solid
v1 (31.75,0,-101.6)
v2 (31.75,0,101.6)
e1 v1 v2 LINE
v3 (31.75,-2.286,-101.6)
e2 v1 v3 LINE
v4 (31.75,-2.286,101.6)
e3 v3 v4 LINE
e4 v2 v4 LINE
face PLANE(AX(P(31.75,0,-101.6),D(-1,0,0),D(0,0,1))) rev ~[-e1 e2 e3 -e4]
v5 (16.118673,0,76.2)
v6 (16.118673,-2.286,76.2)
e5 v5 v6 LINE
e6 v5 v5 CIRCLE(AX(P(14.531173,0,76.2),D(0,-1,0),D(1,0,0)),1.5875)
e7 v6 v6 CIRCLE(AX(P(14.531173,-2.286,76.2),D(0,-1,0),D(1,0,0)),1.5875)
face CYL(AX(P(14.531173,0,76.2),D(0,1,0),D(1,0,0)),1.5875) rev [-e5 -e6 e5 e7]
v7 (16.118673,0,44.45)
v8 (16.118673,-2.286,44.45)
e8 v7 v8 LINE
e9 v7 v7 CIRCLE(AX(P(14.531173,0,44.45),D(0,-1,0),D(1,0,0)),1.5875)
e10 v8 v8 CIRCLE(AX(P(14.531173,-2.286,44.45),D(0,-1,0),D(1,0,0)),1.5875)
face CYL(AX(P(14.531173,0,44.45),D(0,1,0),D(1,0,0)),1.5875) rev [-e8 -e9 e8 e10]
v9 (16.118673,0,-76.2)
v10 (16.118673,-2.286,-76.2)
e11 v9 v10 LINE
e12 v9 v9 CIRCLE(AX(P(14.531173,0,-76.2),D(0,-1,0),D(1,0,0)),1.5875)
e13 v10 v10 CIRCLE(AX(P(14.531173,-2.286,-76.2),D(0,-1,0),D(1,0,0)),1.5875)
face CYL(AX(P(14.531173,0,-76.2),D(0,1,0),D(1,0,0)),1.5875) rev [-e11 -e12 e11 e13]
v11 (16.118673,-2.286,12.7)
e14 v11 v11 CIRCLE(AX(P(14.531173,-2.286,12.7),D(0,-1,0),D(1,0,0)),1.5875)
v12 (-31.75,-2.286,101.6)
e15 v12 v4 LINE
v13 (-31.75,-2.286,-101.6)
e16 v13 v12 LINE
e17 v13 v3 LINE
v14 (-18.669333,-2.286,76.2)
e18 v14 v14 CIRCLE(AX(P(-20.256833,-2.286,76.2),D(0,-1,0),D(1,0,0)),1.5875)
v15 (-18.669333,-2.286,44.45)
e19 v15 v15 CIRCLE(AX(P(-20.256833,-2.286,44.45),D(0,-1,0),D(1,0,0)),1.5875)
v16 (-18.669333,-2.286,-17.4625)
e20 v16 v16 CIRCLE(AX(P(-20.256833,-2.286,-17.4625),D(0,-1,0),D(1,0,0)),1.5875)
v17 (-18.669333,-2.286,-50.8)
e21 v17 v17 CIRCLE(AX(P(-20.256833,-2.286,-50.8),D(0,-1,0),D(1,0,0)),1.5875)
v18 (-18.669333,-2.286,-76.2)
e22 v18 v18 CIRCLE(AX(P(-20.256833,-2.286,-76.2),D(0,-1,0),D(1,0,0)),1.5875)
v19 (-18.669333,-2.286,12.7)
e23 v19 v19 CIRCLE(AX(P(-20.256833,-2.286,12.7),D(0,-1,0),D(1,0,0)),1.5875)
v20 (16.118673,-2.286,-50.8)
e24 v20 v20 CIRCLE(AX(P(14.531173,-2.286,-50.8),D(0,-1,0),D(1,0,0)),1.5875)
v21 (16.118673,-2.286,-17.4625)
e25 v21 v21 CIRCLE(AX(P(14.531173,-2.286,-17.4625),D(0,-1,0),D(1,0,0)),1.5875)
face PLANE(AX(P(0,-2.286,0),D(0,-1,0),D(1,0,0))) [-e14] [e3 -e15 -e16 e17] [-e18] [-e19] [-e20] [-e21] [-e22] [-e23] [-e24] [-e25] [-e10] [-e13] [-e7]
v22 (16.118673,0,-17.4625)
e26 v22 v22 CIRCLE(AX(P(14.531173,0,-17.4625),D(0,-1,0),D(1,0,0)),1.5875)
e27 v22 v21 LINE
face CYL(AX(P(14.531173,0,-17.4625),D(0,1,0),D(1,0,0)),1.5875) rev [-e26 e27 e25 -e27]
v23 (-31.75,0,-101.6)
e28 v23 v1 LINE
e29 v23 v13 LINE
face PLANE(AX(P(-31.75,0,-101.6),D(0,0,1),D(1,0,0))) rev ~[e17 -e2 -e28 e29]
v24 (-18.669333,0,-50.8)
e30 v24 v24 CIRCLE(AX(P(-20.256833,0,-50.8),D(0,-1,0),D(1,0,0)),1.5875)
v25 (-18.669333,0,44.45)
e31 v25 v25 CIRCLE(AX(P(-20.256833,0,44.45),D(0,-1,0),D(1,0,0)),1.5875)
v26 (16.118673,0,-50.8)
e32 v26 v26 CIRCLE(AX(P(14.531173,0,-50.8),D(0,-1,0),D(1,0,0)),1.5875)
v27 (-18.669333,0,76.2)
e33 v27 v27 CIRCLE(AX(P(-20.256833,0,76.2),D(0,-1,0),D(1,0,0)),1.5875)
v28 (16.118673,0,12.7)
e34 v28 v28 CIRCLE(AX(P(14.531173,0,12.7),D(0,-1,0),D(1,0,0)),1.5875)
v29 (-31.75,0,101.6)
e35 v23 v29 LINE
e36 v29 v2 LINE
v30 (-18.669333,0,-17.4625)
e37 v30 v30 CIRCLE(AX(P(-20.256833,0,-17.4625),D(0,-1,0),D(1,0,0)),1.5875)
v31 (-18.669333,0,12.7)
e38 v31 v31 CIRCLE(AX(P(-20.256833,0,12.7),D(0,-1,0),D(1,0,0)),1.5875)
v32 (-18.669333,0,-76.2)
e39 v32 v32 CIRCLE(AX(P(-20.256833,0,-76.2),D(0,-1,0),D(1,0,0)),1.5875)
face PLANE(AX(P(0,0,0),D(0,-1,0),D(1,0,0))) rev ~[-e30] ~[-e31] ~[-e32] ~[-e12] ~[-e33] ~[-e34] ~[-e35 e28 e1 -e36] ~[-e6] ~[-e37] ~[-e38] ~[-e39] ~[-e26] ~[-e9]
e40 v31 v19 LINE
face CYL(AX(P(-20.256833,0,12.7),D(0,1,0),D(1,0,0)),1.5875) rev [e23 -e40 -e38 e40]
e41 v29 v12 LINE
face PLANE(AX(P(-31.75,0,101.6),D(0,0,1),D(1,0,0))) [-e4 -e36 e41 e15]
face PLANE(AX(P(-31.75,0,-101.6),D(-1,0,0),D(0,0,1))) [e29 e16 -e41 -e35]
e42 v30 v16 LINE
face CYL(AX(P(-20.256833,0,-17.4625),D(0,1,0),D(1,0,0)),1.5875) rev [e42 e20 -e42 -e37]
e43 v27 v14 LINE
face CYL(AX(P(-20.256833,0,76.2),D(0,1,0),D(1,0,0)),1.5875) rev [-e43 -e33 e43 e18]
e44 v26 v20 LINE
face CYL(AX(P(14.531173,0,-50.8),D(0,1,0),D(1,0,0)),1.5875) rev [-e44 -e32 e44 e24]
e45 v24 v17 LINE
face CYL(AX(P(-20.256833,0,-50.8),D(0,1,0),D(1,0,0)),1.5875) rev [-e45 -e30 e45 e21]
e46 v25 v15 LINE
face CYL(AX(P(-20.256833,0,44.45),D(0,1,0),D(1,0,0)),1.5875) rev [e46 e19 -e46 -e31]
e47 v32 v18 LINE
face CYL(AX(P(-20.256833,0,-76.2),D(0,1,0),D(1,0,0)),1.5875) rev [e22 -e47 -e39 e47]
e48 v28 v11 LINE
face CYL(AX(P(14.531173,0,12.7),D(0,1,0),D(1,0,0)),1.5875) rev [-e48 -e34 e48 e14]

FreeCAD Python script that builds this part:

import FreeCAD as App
import Part
import Sketcher
from FreeCAD import Vector
Q = App.Units.Quantity


def add_polygon(sketch, points):
    """Adds a closed chain of lines whose ends are joined by coincident constraints."""
    first, n = sketch.GeometryCount, len(points)
    for a, b in zip(points, points[1:] + points[:1]):
        sketch.addGeometry(Part.LineSegment(App.Vector(*a, 0), App.Vector(*b, 0)), False)
    for i in range(n):
        sketch.addConstraint(Sketcher.Constraint("Coincident", first + i, 2, first + (i + 1) % n, 1))

doc = App.newDocument("Part")
params = doc.addObject("Spreadsheet::Sheet", "Params")
for row, (alias, value) in enumerate([
    ("sketch1_height", "8 in"),
    ("sketch1_diameter", "0.125 in"),
    ("sketch1_width", "2.5 in"),
    ("pad1_length", "0.09 in"),
], start=1):
    params.set(f"A{row}", alias)
    params.set(f"B{row}", "=" + value)
    params.setAlias(f"B{row}", alias)

body = doc.addObject("PartDesign::Body", "Body")

# Sketch on XZ plane
sketch1 = body.newObject("Sketcher::SketchObject", "Sketch")
sketch1.AttachmentSupport = (doc.getObject("XZ_Plane"), [""])
sketch1.MapMode = "FlatFace"
add_polygon(sketch1, [(-31.8, 101.6), (-31.8, -101.6), (31.8, -101.6), (31.8, 101.6)])  # lines 0-3
sketch1.addGeometry(Part.Circle(Vector(-20.3, -76.2, 0), Vector(0, 0, 1), 1.6), False)  # 4
sketch1.addGeometry(Part.Circle(Vector(-20.3, -50.8, 0), Vector(0, 0, 1), 1.6), False)  # 5
sketch1.addGeometry(Part.Circle(Vector(-20.3, -17.5, 0), Vector(0, 0, 1), 1.6), False)  # 6
sketch1.addGeometry(Part.Circle(Vector(14.5, -76.2, 0), Vector(0, 0, 1), 1.6), False)  # 7
sketch1.addGeometry(Part.Circle(Vector(14.5, -50.8, 0), Vector(0, 0, 1), 1.6), False)  # 8
sketch1.addGeometry(Part.Circle(Vector(14.5, -17.5, 0), Vector(0, 0, 1), 1.6), False)  # 9
sketch1.addGeometry(Part.Circle(Vector(-20.3, 12.7, 0), Vector(0, 0, 1), 1.6), False)  # 10
sketch1.addGeometry(Part.Circle(Vector(-20.3, 44.5, 0), Vector(0, 0, 1), 1.6), False)  # 11
sketch1.addGeometry(Part.Circle(Vector(-20.3, 76.2, 0), Vector(0, 0, 1), 1.6), False)  # 12
sketch1.addGeometry(Part.Circle(Vector(14.5, 12.7, 0), Vector(0, 0, 1), 1.6), False)  # 13
sketch1.addGeometry(Part.Circle(Vector(14.5, 44.5, 0), Vector(0, 0, 1), 1.6), False)  # 14
sketch1.addGeometry(Part.Circle(Vector(14.5, 76.2, 0), Vector(0, 0, 1), 1.6), False)  # 15
sketch1.addConstraint(Sketcher.Constraint("Vertical", 0))
sketch1.addConstraint(Sketcher.Constraint("Horizontal", 1))
sketch1.addConstraint(Sketcher.Constraint("Vertical", 2))
sketch1.addConstraint(Sketcher.Constraint("Horizontal", 3))
sketch1.addConstraint(Sketcher.Constraint("Equal", 4, 5))
sketch1.addConstraint(Sketcher.Constraint("Equal", 5, 6))
sketch1.addConstraint(Sketcher.Constraint("Equal", 6, 7))
sketch1.addConstraint(Sketcher.Constraint("Equal", 7, 8))
sketch1.addConstraint(Sketcher.Constraint("Equal", 8, 9))
sketch1.addConstraint(Sketcher.Constraint("Equal", 9, 10))
sketch1.addConstraint(Sketcher.Constraint("Equal", 10, 11))
sketch1.addConstraint(Sketcher.Constraint("Equal", 11, 12))
sketch1.addConstraint(Sketcher.Constraint("Equal", 12, 13))
sketch1.addConstraint(Sketcher.Constraint("Equal", 13, 14))
sketch1.addConstraint(Sketcher.Constraint("Equal", 14, 15))
sketch1.addConstraint(Sketcher.Constraint("Symmetric", 0, 2, 2, 2, -1, 1))
sketch1.addConstraint(Sketcher.Constraint("Symmetric", 4, 3, 12, 3, -1))
sketch1.addConstraint(Sketcher.Constraint("Symmetric", 7, 3, 15, 3, -1))
sketch1.addConstraint(Sketcher.Constraint("Horizontal", 4, 3, 7, 3))
sketch1.addConstraint(Sketcher.Constraint("Horizontal", 5, 3, 8, 3))
sketch1.addConstraint(Sketcher.Constraint("Horizontal", 6, 3, 9, 3))
sketch1.addConstraint(Sketcher.Constraint("Horizontal", 10, 3, 13, 3))
sketch1.addConstraint(Sketcher.Constraint("Horizontal", 11, 3, 14, 3))
sketch1.addConstraint(Sketcher.Constraint("Vertical", 4, 3, 5, 3))
sketch1.addConstraint(Sketcher.Constraint("Vertical", 5, 3, 6, 3))
sketch1.addConstraint(Sketcher.Constraint("Vertical", 7, 3, 8, 3))
sketch1.addConstraint(Sketcher.Constraint("Vertical", 8, 3, 9, 3))
sketch1.addConstraint(Sketcher.Constraint("Vertical", 6, 3, 10, 3))
sketch1.addConstraint(Sketcher.Constraint("Vertical", 10, 3, 11, 3))
sketch1.addConstraint(Sketcher.Constraint("Vertical", 9, 3, 13, 3))
sketch1.addConstraint(Sketcher.Constraint("Vertical", 13, 3, 14, 3))
sketch1.addConstraint(Sketcher.Constraint("DistanceY", 0, 2, 0, 1, Q("8 in")))
sketch1.addConstraint(Sketcher.Constraint("Diameter", 4, Q("0.125 in")))
sketch1.addConstraint(Sketcher.Constraint("DistanceX", 1, 1, 1, 2, Q("2.5 in")))
sketch1.addConstraint(Sketcher.Constraint("DistanceY", 4, 3, -1, 1, Q("3 in")))
sketch1.addConstraint(Sketcher.Constraint("DistanceY", 5, 3, -1, 1, Q("2 in")))
sketch1.addConstraint(Sketcher.Constraint("DistanceY", -1, 1, 10, 3, Q("0.5 in")))
sketch1.addConstraint(Sketcher.Constraint("DistanceY", -1, 1, 11, 3, Q("1.75 in")))
sketch1.addConstraint(Sketcher.Constraint("DistanceY", 6, 3, -1, 1, Q("0.6875 in")))
sketch1.addConstraint(Sketcher.Constraint("DistanceX", 4, 3, -1, 1, 20.256833))
sketch1.addConstraint(Sketcher.Constraint("DistanceX", -1, 1, 7, 3, 14.531173))
sketch1.setExpression("Constraints[35]", "Params.sketch1_height")
sketch1.setExpression("Constraints[36]", "Params.sketch1_diameter")
sketch1.setExpression("Constraints[37]", "Params.sketch1_width")
pad1 = body.newObject("PartDesign::Pad", "Pad")
pad1.Profile = sketch1
pad1.setExpression("Length", "Params.pad1_length")

doc.recompute()
